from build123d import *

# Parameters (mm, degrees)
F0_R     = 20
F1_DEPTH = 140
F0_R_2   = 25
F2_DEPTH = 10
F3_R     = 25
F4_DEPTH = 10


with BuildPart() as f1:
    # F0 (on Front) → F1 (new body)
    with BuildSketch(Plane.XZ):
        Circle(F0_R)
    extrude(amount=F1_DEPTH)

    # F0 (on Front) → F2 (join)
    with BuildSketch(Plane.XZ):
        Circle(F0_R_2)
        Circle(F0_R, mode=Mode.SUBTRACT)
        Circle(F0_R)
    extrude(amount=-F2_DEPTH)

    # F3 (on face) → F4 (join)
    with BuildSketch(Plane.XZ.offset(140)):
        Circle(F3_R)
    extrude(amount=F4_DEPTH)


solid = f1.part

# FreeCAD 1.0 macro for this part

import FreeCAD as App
import Part
import Sketcher

V = App.Vector
Q = App.Units.Quantity

doc = App.newDocument("Part")
body = doc.addObject("PartDesign::Body", "Body")

sketch1 = doc.addObject("Sketcher::SketchObject", "Sketch")
body.addObject(sketch1)
sketch1.AttachmentSupport = (doc.XZ_Plane, [""])
sketch1.MapMode = "FlatFace"
sketch1.addGeometry(Part.Circle(V(0, 0, 0), V(0, 0, 1), 20), False)
sketch1.addConstraint([
    Sketcher.Constraint("Coincident", 0, 3, -1, 1),
    Sketcher.Constraint("Diameter", 0, Q("40 mm")),
])
pad1 = doc.addObject("PartDesign::Pad", "Pad")
body.addObject(pad1)
pad1.Profile = sketch1
pad1.Length = 140

sketch2 = doc.addObject("Sketcher::SketchObject", "Sketch001")
body.addObject(sketch2)
sketch2.AttachmentSupport = (doc.XZ_Plane, [""])
sketch2.MapMode = "FlatFace"
sketch2.addGeometry(Part.Circle(V(0, 0, 0), V(0, 0, 1), 25), False)
sketch2.addConstraint([
    Sketcher.Constraint("Coincident", 0, 3, -1, 1),
    Sketcher.Constraint("Diameter", 0, Q("50 mm")),
])
pad2 = doc.addObject("PartDesign::Pad", "Pad001")
body.addObject(pad2)
pad2.Profile = sketch2
pad2.Length = 10
pad2.Reversed = True

sketch3 = doc.addObject("Sketcher::SketchObject", "Sketch002")
body.addObject(sketch3)
sketch3.AttachmentSupport = (doc.XZ_Plane, [""])
sketch3.MapMode = "FlatFace"
sketch3.AttachmentOffset = App.Placement(V(0, 0, 140), App.Rotation())
sketch3.addGeometry(Part.Circle(V(0, 0, 0), V(0, 0, 1), 25), False)
sketch3.addConstraint([
    Sketcher.Constraint("Coincident", 0, 3, -1, 1),
    Sketcher.Constraint("Diameter", 0, Q("50 mm")),
])
pad3 = doc.addObject("PartDesign::Pad", "Pad002")
body.addObject(pad3)
pad3.Profile = sketch3
pad3.Length = 10

doc.recompute()
